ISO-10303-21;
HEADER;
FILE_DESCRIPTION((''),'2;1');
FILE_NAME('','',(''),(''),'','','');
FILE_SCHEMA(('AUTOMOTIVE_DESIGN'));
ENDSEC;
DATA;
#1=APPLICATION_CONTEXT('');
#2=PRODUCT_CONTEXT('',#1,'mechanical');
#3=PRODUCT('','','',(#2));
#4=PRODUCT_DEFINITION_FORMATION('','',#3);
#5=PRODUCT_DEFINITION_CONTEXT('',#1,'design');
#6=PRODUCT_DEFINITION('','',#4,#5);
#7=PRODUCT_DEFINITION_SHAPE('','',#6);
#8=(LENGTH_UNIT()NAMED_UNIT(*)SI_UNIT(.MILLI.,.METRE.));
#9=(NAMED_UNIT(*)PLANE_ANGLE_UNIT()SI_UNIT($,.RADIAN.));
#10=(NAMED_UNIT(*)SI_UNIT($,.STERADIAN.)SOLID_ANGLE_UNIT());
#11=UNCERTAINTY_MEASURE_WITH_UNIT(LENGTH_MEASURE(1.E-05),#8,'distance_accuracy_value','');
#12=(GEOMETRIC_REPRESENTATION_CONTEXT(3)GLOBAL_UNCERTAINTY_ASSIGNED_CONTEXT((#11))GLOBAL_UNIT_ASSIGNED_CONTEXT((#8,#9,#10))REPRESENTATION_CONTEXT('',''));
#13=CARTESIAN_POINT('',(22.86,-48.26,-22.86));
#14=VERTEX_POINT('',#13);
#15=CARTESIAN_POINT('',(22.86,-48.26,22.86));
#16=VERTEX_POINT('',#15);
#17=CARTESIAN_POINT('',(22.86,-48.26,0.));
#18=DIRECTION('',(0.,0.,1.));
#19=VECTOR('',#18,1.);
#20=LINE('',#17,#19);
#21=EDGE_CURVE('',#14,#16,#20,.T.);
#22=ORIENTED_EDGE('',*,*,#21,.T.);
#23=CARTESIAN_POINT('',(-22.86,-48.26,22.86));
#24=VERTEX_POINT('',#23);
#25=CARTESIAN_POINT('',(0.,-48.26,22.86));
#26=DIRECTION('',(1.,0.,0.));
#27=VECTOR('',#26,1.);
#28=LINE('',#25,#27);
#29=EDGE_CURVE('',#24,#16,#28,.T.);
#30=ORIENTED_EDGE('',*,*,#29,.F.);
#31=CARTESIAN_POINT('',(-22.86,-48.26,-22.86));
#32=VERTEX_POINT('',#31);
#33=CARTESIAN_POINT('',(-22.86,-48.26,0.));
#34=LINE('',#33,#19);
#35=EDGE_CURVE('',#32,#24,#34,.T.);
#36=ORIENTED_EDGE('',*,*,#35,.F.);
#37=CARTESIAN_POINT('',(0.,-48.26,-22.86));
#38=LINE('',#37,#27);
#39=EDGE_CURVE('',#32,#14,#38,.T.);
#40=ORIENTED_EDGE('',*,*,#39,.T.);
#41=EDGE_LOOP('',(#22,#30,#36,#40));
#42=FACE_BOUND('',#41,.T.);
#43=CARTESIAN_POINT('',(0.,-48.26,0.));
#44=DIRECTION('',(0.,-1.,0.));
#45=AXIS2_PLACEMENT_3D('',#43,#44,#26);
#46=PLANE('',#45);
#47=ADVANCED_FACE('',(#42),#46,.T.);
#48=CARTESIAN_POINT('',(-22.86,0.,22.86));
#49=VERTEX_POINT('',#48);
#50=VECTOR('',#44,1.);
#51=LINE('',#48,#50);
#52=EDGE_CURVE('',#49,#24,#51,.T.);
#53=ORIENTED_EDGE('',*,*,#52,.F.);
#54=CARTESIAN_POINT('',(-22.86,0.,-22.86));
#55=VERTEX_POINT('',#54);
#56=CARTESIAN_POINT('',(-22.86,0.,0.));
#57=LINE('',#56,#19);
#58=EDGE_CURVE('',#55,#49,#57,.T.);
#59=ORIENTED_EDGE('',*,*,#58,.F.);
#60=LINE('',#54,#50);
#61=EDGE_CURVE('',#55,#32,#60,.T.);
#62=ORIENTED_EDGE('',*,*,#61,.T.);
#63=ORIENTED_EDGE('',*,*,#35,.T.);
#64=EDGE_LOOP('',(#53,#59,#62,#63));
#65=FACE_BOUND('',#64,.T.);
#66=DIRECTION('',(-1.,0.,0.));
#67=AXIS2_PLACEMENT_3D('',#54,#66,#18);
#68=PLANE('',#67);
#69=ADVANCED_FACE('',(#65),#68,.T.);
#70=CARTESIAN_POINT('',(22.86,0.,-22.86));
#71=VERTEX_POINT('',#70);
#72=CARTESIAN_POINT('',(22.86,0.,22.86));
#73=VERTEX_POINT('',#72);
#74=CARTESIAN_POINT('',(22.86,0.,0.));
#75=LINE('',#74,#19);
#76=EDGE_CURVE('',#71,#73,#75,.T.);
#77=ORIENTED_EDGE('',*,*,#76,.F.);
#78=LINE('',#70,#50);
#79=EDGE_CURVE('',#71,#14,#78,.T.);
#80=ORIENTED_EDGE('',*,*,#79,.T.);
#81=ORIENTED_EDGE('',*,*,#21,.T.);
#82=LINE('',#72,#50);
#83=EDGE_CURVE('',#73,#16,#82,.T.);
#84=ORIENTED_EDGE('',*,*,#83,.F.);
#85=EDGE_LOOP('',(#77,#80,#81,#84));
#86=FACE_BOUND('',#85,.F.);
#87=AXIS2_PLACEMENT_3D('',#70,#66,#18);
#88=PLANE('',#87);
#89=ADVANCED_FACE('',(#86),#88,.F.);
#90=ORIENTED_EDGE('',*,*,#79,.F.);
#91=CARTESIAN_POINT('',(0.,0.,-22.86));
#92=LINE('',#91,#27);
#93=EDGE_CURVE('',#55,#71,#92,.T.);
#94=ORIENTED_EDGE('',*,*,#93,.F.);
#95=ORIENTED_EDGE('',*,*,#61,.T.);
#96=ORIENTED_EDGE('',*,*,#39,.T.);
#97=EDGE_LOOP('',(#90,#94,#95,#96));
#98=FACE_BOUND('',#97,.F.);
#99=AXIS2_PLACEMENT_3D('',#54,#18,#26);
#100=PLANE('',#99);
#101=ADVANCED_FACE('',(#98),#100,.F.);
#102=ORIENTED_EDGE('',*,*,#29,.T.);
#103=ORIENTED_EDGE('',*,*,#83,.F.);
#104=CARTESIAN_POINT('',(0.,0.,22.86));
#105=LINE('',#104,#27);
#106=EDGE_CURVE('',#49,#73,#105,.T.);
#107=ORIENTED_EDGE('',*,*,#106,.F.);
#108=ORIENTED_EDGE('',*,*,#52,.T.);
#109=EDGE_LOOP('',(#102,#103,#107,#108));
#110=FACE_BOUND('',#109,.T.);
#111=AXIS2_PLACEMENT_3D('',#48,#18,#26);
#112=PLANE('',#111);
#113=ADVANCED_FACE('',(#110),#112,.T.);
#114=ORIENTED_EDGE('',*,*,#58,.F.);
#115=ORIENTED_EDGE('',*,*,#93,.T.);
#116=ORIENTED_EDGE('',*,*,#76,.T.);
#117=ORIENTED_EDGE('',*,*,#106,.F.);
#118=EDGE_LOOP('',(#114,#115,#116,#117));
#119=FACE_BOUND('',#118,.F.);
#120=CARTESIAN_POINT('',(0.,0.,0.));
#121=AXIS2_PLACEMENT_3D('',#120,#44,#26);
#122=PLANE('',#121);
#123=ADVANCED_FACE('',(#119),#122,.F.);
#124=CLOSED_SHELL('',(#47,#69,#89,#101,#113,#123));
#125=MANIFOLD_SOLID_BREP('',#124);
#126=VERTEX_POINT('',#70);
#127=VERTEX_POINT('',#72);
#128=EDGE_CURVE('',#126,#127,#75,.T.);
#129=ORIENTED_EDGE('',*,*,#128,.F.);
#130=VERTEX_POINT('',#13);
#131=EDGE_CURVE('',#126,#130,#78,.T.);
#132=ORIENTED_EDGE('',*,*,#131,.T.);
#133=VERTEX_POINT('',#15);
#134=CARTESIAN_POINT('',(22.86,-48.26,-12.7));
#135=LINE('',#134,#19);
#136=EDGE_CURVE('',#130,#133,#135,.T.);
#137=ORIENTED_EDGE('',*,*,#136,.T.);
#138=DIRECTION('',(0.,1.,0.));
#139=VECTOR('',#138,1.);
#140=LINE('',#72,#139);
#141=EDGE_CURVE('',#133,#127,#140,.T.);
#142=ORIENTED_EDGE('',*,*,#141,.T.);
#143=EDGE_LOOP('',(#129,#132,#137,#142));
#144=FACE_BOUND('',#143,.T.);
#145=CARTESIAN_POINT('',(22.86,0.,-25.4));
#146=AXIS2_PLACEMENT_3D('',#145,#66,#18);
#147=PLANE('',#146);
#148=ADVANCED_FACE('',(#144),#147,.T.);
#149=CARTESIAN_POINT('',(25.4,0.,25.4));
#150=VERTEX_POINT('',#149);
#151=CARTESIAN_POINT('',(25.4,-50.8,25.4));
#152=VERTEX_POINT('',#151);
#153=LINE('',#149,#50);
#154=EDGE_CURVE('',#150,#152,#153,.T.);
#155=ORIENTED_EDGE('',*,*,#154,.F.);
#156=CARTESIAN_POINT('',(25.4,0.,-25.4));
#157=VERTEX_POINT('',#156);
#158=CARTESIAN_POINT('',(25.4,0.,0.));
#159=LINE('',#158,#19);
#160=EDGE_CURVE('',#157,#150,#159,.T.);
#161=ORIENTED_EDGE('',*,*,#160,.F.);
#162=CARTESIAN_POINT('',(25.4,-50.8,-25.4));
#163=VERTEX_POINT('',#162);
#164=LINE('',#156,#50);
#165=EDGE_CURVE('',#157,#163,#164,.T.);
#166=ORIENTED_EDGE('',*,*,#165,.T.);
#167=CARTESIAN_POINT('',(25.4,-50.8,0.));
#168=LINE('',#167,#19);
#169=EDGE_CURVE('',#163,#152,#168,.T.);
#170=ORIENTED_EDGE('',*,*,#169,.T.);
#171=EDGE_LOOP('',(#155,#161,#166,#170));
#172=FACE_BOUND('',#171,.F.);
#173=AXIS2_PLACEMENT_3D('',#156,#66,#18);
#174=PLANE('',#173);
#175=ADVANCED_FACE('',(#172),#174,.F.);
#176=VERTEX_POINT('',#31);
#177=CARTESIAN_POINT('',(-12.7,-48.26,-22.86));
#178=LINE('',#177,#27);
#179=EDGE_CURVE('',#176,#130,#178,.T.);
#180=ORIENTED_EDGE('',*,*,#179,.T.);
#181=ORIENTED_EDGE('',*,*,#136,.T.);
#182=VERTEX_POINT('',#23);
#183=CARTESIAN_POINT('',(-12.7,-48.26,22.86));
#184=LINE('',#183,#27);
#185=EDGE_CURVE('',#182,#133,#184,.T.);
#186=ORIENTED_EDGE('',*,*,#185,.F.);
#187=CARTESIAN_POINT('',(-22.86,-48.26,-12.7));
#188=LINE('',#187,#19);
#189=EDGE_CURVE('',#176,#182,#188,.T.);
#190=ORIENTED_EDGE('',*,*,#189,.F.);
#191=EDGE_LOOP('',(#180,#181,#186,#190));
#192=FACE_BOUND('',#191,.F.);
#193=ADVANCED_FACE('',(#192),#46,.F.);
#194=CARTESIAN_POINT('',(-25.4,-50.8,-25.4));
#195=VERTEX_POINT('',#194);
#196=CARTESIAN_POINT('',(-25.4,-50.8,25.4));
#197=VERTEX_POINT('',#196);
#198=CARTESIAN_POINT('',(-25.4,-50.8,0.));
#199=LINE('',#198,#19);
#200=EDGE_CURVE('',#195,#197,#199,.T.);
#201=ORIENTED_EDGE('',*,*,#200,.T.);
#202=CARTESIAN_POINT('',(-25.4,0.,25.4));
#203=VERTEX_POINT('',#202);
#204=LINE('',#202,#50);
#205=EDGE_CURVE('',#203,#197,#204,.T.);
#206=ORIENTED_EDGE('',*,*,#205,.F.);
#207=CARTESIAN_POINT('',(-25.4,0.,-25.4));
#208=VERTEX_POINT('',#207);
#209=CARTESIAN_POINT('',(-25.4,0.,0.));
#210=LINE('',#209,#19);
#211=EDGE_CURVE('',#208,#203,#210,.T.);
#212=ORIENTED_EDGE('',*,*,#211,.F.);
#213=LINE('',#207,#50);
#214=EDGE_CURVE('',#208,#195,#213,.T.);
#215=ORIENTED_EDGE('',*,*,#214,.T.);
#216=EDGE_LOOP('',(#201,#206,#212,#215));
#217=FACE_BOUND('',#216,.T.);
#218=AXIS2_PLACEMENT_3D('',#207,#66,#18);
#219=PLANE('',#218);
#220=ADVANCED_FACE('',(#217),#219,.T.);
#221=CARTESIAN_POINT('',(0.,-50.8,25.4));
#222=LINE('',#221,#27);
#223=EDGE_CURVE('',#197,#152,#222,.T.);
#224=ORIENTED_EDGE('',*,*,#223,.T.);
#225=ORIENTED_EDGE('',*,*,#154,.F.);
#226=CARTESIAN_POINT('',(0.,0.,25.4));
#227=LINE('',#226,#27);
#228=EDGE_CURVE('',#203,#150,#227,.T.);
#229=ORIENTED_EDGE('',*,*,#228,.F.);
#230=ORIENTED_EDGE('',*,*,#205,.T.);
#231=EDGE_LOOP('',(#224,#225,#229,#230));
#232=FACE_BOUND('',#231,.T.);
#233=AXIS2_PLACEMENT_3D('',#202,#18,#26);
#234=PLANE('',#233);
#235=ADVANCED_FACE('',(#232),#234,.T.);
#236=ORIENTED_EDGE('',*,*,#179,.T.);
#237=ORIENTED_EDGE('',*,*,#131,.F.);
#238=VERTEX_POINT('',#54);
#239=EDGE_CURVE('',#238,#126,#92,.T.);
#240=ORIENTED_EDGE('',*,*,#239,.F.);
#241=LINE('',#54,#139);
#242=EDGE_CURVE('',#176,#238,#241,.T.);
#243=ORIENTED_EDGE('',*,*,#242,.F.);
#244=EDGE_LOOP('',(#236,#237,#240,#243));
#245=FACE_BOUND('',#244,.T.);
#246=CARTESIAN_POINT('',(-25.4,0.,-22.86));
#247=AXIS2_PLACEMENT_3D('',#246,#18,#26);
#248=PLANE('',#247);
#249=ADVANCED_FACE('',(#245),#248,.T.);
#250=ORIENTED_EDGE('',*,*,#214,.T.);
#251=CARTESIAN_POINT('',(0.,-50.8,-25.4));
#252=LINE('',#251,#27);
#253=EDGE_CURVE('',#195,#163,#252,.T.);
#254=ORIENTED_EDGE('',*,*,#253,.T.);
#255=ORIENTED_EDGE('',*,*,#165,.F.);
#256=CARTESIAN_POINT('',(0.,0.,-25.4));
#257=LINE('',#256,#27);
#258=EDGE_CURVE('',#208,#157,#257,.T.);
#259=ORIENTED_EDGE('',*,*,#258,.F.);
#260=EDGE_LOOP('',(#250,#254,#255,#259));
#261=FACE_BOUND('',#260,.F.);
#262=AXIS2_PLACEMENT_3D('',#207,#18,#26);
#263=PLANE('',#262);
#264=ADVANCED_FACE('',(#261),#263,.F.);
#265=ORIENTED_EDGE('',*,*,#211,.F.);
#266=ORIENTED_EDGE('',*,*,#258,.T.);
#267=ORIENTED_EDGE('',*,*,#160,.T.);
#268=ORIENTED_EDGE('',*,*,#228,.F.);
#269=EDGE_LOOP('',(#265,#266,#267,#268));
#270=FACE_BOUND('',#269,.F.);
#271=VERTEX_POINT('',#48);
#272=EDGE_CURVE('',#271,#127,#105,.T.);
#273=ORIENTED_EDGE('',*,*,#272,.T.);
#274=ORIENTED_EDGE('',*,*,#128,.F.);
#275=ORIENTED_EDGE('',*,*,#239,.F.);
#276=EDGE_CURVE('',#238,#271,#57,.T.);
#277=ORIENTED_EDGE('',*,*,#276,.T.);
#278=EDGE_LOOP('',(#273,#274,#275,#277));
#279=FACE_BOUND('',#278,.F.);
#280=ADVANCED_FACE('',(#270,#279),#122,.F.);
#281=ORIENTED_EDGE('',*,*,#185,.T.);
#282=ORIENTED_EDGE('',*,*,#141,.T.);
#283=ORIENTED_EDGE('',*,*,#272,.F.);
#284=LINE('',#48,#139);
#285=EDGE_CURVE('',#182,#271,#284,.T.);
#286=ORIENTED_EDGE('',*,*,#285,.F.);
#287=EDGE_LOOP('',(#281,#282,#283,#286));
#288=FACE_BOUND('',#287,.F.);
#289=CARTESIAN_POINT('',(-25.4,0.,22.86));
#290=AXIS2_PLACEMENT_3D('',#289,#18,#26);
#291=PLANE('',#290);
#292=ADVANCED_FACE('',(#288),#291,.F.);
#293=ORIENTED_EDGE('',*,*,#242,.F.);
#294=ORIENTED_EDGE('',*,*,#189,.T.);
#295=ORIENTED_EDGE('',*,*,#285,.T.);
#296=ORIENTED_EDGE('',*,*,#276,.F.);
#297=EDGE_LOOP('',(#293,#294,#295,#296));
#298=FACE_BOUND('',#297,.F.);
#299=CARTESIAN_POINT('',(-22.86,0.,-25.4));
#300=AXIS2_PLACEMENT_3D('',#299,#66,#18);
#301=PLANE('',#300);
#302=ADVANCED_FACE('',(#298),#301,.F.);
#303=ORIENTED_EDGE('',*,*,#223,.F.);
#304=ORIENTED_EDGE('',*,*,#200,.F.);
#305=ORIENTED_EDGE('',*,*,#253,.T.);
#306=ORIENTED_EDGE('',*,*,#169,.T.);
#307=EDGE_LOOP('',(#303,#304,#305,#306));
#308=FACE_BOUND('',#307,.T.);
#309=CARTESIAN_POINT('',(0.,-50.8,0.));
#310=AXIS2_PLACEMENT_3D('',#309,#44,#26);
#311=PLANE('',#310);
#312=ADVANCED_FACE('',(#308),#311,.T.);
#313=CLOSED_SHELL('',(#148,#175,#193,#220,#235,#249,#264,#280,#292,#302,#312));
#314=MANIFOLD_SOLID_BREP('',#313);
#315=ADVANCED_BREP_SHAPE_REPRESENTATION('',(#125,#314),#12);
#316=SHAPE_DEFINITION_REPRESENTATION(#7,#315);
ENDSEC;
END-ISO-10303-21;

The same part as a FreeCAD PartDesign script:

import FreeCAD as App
import Part
import Sketcher
from FreeCAD import Vector
Q = App.Units.Quantity


def faces_at(feature, points):
    """Names of the faces that lie closest to the given points."""
    faces = feature.Shape.Faces
    near = lambda p: min(range(len(faces)), key=lambda i: faces[i].distToShape(Part.Vertex(*p))[0])
    return sorted({f"Face{near(p) + 1}" for p in points})


def add_polygon(sketch, points):
    """Adds a closed chain of lines whose ends are joined by coincident constraints."""
    first, n = sketch.GeometryCount, len(points)
    for a, b in zip(points, points[1:] + points[:1]):
        sketch.addGeometry(Part.LineSegment(App.Vector(*a, 0), App.Vector(*b, 0)), False)
    for i in range(n):
        sketch.addConstraint(Sketcher.Constraint("Coincident", first + i, 2, first + (i + 1) % n, 1))

doc = App.newDocument("Part")
body = doc.addObject("PartDesign::Body", "Body")

# Sketch on XZ plane
sketch1 = doc.addObject("Sketcher::SketchObject", "Sketch")
body.addObject(sketch1)
sketch1.AttachmentSupport = (doc.XZ_Plane, [""])
sketch1.MapMode = "FlatFace"
add_polygon(sketch1, [(-25, 25), (-25, -25), (25, -25), (25, 25)])  # lines 0-3
sketch1.addConstraint(Sketcher.Constraint("Vertical", 0))
sketch1.addConstraint(Sketcher.Constraint("Horizontal", 1))
sketch1.addConstraint(Sketcher.Constraint("Vertical", 2))
sketch1.addConstraint(Sketcher.Constraint("Horizontal", 3))
sketch1.addConstraint(Sketcher.Constraint("Symmetric", 0, 2, 2, 2, -1, 1))
sketch1.addConstraint(Sketcher.Constraint("Equal", 3, 0))
sketch1.addConstraint(Sketcher.Constraint("DistanceX", 1, 1, 1, 2, Q("2 in")))
pad1 = doc.addObject("PartDesign::Pad", "Pad")
body.addObject(pad1)
pad1.Profile = sketch1
pad1.Length = Q("2 in")
doc.recompute()

thickness = doc.addObject("PartDesign::Thickness", "Thickness")
body.addObject(thickness)
thickness.Base = (pad1, faces_at(pad1, [(0, 0, 0)]))
thickness.Value = Q("0.1 in")
thickness.Reversed = True
thickness.Join = "Arc"
body2 = doc.addObject("PartDesign::Body", "Body001")

# Sketch on XZ plane
sketch2 = doc.addObject("Sketcher::SketchObject", "Sketch001")
body2.addObject(sketch2)
sketch2.AttachmentSupport = (doc.getObject("XZ_Plane001"), [""])
sketch2.MapMode = "FlatFace"
add_polygon(sketch2, [(-23, 23), (-23, -23), (23, -23), (23, 23)])  # lines 0-3
sketch2.addConstraint(Sketcher.Constraint("Vertical", 0))
sketch2.addConstraint(Sketcher.Constraint("Horizontal", 1))
sketch2.addConstraint(Sketcher.Constraint("Vertical", 2))
sketch2.addConstraint(Sketcher.Constraint("Horizontal", 3))
sketch2.addConstraint(Sketcher.Constraint("Symmetric", 0, 2, 2, 2, -1, 1))
sketch2.addConstraint(Sketcher.Constraint("Equal", 3, 0))
sketch2.addConstraint(Sketcher.Constraint("DistanceX", 1, 1, 1, 2, Q("1.8 in")))
pad2 = doc.addObject("PartDesign::Pad", "Pad001")
body2.addObject(pad2)
pad2.Profile = sketch2
pad2.Length = Q("1.9 in")

doc.recompute()
